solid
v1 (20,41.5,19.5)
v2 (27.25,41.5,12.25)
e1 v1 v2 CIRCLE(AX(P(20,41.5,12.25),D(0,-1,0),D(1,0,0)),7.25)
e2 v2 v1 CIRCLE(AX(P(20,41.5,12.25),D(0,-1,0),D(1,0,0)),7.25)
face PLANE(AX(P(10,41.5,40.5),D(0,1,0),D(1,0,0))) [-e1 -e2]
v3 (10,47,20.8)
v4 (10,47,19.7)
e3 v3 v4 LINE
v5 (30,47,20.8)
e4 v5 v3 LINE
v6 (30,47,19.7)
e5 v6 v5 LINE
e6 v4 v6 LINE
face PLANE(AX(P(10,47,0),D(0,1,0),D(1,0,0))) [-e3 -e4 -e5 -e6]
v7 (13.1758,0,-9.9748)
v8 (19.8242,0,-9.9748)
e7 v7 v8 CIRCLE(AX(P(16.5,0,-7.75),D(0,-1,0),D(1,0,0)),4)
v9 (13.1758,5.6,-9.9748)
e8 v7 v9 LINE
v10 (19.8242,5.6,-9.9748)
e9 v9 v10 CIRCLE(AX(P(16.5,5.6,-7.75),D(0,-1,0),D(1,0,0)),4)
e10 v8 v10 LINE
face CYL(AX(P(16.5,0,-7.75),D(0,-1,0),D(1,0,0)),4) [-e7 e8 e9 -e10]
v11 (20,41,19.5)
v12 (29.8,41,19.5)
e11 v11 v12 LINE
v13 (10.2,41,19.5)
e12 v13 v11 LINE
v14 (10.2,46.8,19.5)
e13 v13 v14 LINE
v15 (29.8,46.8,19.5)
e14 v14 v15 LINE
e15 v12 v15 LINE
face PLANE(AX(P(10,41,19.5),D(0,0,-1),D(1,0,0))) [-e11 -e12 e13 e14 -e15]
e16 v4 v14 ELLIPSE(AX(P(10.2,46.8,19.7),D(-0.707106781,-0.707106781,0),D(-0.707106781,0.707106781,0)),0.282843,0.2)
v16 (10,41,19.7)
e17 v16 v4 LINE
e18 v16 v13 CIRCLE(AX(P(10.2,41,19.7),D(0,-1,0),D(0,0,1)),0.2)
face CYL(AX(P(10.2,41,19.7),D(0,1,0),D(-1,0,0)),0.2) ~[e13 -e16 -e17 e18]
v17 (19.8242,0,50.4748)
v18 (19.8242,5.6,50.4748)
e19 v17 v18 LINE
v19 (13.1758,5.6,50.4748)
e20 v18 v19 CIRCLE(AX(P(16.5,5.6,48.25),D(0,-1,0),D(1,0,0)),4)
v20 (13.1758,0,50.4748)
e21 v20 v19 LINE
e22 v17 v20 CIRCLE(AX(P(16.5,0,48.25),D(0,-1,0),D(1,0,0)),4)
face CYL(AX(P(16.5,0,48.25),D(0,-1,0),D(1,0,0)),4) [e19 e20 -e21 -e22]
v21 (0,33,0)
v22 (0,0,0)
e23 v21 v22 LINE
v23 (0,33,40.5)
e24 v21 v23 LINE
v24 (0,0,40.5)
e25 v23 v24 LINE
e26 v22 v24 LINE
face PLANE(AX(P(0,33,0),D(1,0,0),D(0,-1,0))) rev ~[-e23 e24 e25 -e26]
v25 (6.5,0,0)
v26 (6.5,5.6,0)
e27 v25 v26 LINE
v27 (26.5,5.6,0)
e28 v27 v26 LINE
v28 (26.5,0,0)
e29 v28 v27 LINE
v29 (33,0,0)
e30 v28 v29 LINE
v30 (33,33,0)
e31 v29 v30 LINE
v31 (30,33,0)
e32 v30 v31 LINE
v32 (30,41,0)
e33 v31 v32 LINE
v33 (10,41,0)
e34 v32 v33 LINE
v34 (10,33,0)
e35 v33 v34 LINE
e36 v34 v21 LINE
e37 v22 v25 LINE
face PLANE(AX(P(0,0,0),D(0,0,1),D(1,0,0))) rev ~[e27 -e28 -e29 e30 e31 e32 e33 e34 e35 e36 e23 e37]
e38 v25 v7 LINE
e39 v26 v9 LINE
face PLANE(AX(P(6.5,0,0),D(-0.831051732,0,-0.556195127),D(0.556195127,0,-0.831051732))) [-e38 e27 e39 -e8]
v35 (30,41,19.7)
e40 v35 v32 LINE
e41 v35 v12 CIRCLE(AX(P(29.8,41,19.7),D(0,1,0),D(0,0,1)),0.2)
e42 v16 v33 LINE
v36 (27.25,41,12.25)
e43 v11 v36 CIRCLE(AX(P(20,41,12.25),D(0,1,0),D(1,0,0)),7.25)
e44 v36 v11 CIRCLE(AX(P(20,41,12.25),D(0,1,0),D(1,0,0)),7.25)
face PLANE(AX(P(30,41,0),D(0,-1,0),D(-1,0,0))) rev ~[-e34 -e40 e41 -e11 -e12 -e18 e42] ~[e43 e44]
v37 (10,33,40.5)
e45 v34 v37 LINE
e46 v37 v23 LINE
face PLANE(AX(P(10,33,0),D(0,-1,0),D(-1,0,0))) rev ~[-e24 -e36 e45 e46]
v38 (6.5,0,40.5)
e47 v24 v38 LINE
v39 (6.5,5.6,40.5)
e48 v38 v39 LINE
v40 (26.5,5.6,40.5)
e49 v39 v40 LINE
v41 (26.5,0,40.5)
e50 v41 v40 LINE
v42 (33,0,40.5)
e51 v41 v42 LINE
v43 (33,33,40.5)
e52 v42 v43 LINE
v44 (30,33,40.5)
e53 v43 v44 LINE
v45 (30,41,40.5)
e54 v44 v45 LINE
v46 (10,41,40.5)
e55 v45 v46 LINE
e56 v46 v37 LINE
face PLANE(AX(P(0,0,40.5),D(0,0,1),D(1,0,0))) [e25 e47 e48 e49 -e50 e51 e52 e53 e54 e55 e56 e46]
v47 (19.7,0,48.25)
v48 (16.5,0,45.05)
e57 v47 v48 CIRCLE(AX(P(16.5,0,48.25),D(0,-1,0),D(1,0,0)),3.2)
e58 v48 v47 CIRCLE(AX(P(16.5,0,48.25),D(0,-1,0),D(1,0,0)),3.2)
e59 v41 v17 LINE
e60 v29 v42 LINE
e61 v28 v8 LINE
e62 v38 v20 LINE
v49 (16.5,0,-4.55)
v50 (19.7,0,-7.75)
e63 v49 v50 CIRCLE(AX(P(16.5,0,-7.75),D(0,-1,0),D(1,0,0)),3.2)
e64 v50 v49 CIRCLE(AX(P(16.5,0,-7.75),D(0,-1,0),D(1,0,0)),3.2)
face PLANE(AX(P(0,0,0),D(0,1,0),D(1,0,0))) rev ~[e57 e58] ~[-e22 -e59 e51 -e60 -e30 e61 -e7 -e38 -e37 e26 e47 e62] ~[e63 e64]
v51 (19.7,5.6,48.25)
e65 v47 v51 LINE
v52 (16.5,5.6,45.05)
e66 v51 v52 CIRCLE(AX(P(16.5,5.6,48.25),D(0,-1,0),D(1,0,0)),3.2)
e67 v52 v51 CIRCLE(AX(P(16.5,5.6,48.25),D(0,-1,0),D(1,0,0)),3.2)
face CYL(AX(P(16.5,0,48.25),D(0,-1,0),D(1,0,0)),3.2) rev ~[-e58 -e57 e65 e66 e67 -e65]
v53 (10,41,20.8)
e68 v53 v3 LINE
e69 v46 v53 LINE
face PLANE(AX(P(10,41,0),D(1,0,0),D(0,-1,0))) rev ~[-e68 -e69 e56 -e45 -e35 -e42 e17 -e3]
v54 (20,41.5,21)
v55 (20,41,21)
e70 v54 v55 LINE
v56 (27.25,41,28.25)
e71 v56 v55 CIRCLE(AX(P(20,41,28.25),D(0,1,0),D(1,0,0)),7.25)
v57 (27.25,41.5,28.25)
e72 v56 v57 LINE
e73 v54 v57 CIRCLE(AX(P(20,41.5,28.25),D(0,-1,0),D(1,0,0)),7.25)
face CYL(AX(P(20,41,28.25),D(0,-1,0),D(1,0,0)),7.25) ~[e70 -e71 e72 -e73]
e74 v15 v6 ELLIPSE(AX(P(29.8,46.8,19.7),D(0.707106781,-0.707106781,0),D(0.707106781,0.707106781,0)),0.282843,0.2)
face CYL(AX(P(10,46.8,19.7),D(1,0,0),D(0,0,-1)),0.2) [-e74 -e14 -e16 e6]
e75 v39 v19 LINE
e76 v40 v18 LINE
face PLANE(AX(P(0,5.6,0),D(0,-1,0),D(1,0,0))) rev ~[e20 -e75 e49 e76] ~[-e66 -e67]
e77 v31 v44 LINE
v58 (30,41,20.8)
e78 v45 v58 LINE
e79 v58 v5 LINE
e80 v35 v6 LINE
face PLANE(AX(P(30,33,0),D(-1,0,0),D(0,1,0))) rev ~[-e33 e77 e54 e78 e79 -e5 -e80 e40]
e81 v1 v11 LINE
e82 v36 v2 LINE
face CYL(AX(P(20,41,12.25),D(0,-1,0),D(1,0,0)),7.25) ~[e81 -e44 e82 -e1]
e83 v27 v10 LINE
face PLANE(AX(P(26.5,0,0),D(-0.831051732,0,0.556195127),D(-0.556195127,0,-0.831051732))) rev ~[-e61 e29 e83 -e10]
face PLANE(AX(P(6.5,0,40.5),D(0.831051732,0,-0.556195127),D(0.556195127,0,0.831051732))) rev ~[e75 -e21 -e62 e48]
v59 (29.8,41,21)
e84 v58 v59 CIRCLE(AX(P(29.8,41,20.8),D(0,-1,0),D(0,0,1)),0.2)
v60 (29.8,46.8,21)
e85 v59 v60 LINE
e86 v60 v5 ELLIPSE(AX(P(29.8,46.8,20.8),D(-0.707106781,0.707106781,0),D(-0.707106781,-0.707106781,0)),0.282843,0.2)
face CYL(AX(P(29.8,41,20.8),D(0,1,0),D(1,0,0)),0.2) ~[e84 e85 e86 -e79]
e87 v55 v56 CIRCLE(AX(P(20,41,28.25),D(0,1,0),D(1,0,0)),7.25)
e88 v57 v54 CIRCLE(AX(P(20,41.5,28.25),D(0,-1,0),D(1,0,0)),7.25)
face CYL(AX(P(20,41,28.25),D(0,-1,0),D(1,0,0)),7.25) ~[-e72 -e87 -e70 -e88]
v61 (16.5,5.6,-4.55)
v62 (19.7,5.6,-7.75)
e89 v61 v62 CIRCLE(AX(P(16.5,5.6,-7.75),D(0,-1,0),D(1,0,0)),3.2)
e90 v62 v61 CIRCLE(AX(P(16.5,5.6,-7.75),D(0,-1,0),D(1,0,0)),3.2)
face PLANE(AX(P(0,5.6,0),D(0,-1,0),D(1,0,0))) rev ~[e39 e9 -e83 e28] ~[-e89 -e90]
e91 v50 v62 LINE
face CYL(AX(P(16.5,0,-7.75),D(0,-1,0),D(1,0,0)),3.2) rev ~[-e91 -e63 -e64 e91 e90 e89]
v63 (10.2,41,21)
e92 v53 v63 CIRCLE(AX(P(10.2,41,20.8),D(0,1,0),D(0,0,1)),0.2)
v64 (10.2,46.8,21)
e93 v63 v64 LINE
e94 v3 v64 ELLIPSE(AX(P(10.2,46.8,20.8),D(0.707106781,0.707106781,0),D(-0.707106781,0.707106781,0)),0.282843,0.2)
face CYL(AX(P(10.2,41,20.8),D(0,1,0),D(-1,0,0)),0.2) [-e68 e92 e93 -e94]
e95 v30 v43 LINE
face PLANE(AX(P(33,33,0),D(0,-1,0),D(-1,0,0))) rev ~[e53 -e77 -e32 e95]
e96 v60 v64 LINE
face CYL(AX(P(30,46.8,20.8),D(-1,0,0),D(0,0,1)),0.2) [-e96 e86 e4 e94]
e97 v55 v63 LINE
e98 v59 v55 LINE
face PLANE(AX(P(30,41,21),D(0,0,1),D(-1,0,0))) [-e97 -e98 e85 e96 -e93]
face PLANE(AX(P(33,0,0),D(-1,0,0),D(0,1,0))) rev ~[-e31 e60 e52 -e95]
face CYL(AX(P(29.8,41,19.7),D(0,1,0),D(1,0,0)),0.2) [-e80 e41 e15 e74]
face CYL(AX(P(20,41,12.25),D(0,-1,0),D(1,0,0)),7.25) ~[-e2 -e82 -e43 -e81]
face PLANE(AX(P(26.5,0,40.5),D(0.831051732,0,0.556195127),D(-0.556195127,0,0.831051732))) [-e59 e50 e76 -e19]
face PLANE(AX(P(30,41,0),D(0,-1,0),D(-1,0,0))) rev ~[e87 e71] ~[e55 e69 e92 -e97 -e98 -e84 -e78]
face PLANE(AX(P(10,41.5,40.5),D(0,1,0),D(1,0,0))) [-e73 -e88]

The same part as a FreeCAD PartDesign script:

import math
import FreeCAD as App
import Part
import Sketcher
from FreeCAD import Vector


def edges_at(feature, points):
    """Names of the edges that pass closest to the given points."""
    edges = feature.Shape.Edges
    near = lambda p: min(range(len(edges)), key=lambda i: edges[i].distToShape(Part.Vertex(*p))[0])
    return sorted({f"Edge{near(p) + 1}" for p in points})

doc = App.newDocument("Part")
body = doc.addObject("PartDesign::Body", "Body")

# Sketch on XY plane
sketch1 = body.newObject("Sketcher::SketchObject", "Sketch")
sketch1.AttachmentSupport = (doc.getObject("XY_Plane"), [""])
sketch1.MapMode = "FlatFace"
sketch1.addGeometry(Part.LineSegment(Vector(0, 33, 0), Vector(0, 0, 0)), False)
sketch1.addGeometry(Part.LineSegment(Vector(0, 0, 0), Vector(33, 0, 0)), False)
sketch1.addGeometry(Part.LineSegment(Vector(33, 0, 0), Vector(33, 33, 0)), False)
sketch1.addGeometry(Part.LineSegment(Vector(33, 33, 0), Vector(30, 33, 0)), False)
sketch1.addGeometry(Part.LineSegment(Vector(30, 33, 0), Vector(30, 41, 0)), False)
sketch1.addGeometry(Part.LineSegment(Vector(30, 41, 0), Vector(10, 41, 0)), False)
sketch1.addGeometry(Part.LineSegment(Vector(10, 41, 0), Vector(10, 33, 0)), False)
sketch1.addGeometry(Part.LineSegment(Vector(10, 33, 0), Vector(0, 33, 0)), False)
sketch1.addConstraint(Sketcher.Constraint("Coincident", 0, 2, 1, 1))
sketch1.addConstraint(Sketcher.Constraint("Coincident", 1, 2, 2, 1))
sketch1.addConstraint(Sketcher.Constraint("Coincident", 2, 2, 3, 1))
sketch1.addConstraint(Sketcher.Constraint("Coincident", 3, 2, 4, 1))
sketch1.addConstraint(Sketcher.Constraint("Coincident", 4, 2, 5, 1))
sketch1.addConstraint(Sketcher.Constraint("Coincident", 5, 2, 6, 1))
sketch1.addConstraint(Sketcher.Constraint("Coincident", 6, 2, 7, 1))
sketch1.addConstraint(Sketcher.Constraint("Coincident", 7, 2, 0, 1))
sketch1.addConstraint(Sketcher.Constraint("Vertical", 0))
sketch1.addConstraint(Sketcher.Constraint("Horizontal", 1))
sketch1.addConstraint(Sketcher.Constraint("Vertical", 2))
sketch1.addConstraint(Sketcher.Constraint("Horizontal", 3))
sketch1.addConstraint(Sketcher.Constraint("Vertical", 4))
sketch1.addConstraint(Sketcher.Constraint("Horizontal", 5))
sketch1.addConstraint(Sketcher.Constraint("Vertical", 6))
sketch1.addConstraint(Sketcher.Constraint("Horizontal", 7))
sketch1.addConstraint(Sketcher.Constraint("Coincident", 0, 2, -1, 1))
sketch1.addConstraint(Sketcher.Constraint("Horizontal", 3, 2, 6, 2))
sketch1.addConstraint(Sketcher.Constraint("Equal", 1, 0))
sketch1.addConstraint(Sketcher.Constraint("DistanceX", 1, 1, 1, 2, 33.0))
sketch1.addConstraint(Sketcher.Constraint("DistanceX", 3, 2, 3, 1, 3.0))
sketch1.addConstraint(Sketcher.Constraint("DistanceX", 7, 2, 7, 1, 10.0))
sketch1.addConstraint(Sketcher.Constraint("DistanceY", -1, 1, 4, 2, 41.0))
pad1 = body.newObject("PartDesign::Pad", "Pad")
pad1.Profile = sketch1
pad1.Length = 40.5

# Sketch on XZ plane
sketch2 = body.newObject("Sketcher::SketchObject", "Sketch001")
sketch2.AttachmentSupport = (doc.getObject("XZ_Plane"), [""])
sketch2.MapMode = "FlatFace"
sketch2.AttachmentOffset = App.Placement(Vector(0, 0, -41), App.Rotation())
sketch2.addGeometry(Part.LineSegment(Vector(10, 21, 0), Vector(30, 21, 0)), False)
sketch2.addGeometry(Part.LineSegment(Vector(30, 21, 0), Vector(30, 19.5, 0)), False)
sketch2.addGeometry(Part.LineSegment(Vector(30, 19.5, 0), Vector(10, 19.5, 0)), False)
sketch2.addGeometry(Part.LineSegment(Vector(10, 19.5, 0), Vector(10, 21, 0)), False)
sketch2.addConstraint(Sketcher.Constraint("Coincident", 0, 2, 1, 1))
sketch2.addConstraint(Sketcher.Constraint("Coincident", 1, 2, 2, 1))
sketch2.addConstraint(Sketcher.Constraint("Coincident", 2, 2, 3, 1))
sketch2.addConstraint(Sketcher.Constraint("Coincident", 3, 2, 0, 1))
sketch2.addConstraint(Sketcher.Constraint("Horizontal", 0))
sketch2.addConstraint(Sketcher.Constraint("Vertical", 1))
sketch2.addConstraint(Sketcher.Constraint("Horizontal", 2))
sketch2.addConstraint(Sketcher.Constraint("Vertical", 3))
sketch2.addConstraint(Sketcher.Constraint("DistanceY", 1, 2, 1, 1, 1.5))
sketch2.addConstraint(Sketcher.Constraint("DistanceX", 0, 1, 0, 2, 20.0))
sketch2.addConstraint(Sketcher.Constraint("DistanceX", -1, 1, 0, 2, 30.0))
sketch2.addConstraint(Sketcher.Constraint("DistanceY", -1, 1, 0, 2, 21.0))
pad2 = body.newObject("PartDesign::Pad", "Pad001")
pad2.Profile = sketch2
pad2.Length = 6
pad2.Reversed = True
doc.recompute()

fillet = body.newObject("PartDesign::Fillet", "Fillet")
fillet.Base = (pad2, edges_at(pad2, [
    (10, 44, 21),
    (20, 47, 21),
    (30, 44, 21),
    (10, 44, 19.5),
    (20, 47, 19.5),
    (30, 44, 19.5),
]))
fillet.Radius = 0.2

# Sketch on XZ plane
sketch3 = body.newObject("Sketcher::SketchObject", "Sketch002")
sketch3.AttachmentSupport = (doc.getObject("XZ_Plane"), [""])
sketch3.MapMode = "FlatFace"
sketch3.AttachmentOffset = App.Placement(Vector(0, 0, -41), App.Rotation())
sketch3.addGeometry(Part.Circle(Vector(20, 12, 0), Vector(0, 0, 1), 7), False)
sketch3.addGeometry(Part.Circle(Vector(20, 28, 0), Vector(0, 0, 1), 7), False)
sketch3.addConstraint(Sketcher.Constraint("Equal", 0, 1))
sketch3.addConstraint(Sketcher.Constraint("Vertical", 0, 3, 1, 3))
sketch3.addConstraint(Sketcher.Constraint("Diameter", 0, 14.5))
sketch3.addConstraint(Sketcher.Constraint("DistanceX", -1, 1, 0, 3, 20.0))
sketch3.addConstraint(Sketcher.Constraint("DistanceY", 0, 3, 1, 3, 16.0))
sketch3.addConstraint(Sketcher.Constraint("DistanceY", -1, 1, 0, 3, 12.25))
pad3 = body.newObject("PartDesign::Pad", "Pad002")
pad3.Profile = sketch3
pad3.Length = 0.5
pad3.Reversed = True

# Sketch on XZ plane
sketch4 = body.newObject("Sketcher::SketchObject", "Sketch003")
sketch4.AttachmentSupport = (doc.getObject("XZ_Plane"), [""])
sketch4.MapMode = "FlatFace"
sketch4.addGeometry(Part.LineSegment(Vector(6.5, 40.5, 0), Vector(26.5, 40.5, 0)), False)
sketch4.addGeometry(Part.LineSegment(Vector(26.5, 40.5, 0), Vector(19.8, 50.5, 0)), False)
sketch4.addGeometry(Part.ArcOfCircle(Part.Circle(Vector(16.5, 48.2, 0), Vector(0, 0, 1), 4), math.radians(34), math.radians(146)), False)
sketch4.addGeometry(Part.LineSegment(Vector(13.2, 50.5, 0), Vector(6.5, 40.5, 0)), False)
sketch4.addGeometry(Part.Circle(Vector(16.5, 48.2, 0), Vector(0, 0, 1), 3.2), False)
sketch4.addGeometry(Part.LineSegment(Vector(6.5, 0, 0), Vector(13.2, -10, 0)), False)
sketch4.addGeometry(Part.ArcOfCircle(Part.Circle(Vector(16.5, -7.8, 0), Vector(0, 0, 1), 4), math.radians(-146), math.radians(-34)), False)
sketch4.addGeometry(Part.LineSegment(Vector(19.8, -10, 0), Vector(26.5, 0, 0)), False)
sketch4.addGeometry(Part.LineSegment(Vector(26.5, 0, 0), Vector(6.5, 0, 0)), False)
sketch4.addGeometry(Part.Circle(Vector(16.5, -7.8, 0), Vector(0, 0, 1), 3.2), False)
sketch4.addConstraint(Sketcher.Constraint("Coincident", 0, 2, 1, 1))
sketch4.addConstraint(Sketcher.Constraint("Tangent", 1, 2, 2, 1))
sketch4.addConstraint(Sketcher.Constraint("Tangent", 2, 2, 3, 1))
sketch4.addConstraint(Sketcher.Constraint("Coincident", 3, 2, 0, 1))
sketch4.addConstraint(Sketcher.Constraint("Tangent", 5, 2, 6, 1))
sketch4.addConstraint(Sketcher.Constraint("Tangent", 6, 2, 7, 1))
sketch4.addConstraint(Sketcher.Constraint("Coincident", 7, 2, 8, 1))
sketch4.addConstraint(Sketcher.Constraint("Coincident", 8, 2, 5, 1))
sketch4.addConstraint(Sketcher.Constraint("Horizontal", 0))
sketch4.addConstraint(Sketcher.Constraint("Horizontal", 8))
sketch4.addConstraint(Sketcher.Constraint("Coincident", 4, 3, 2, 3))
sketch4.addConstraint(Sketcher.Constraint("Coincident", 9, 3, 6, 3))
sketch4.addConstraint(Sketcher.Constraint("Equal", 2, 6))
sketch4.addConstraint(Sketcher.Constraint("Equal", 4, 9))
sketch4.addConstraint(Sketcher.Constraint("PointOnObject", 7, 2, -1))
sketch4.addConstraint(Sketcher.Constraint("Parallel", 1, 5))
sketch4.addConstraint(Sketcher.Constraint("Parallel", 3, 7))
sketch4.addConstraint(Sketcher.Constraint("Horizontal", 1, 2, 2, 2))
sketch4.addConstraint(Sketcher.Constraint("Vertical", 4, 3, 6, 3))
sketch4.addConstraint(Sketcher.Constraint("Vertical", 0, 2, 7, 2))
sketch4.addConstraint(Sketcher.Constraint("Radius", 2, 4.0))
sketch4.addConstraint(Sketcher.Constraint("Diameter", 4, 6.4))
sketch4.addConstraint(Sketcher.Constraint("DistanceX", 0, 1, 0, 2, 20.0))
sketch4.addConstraint(Sketcher.Constraint("DistanceX", -1, 1, 3, 2, 6.5))
sketch4.addConstraint(Sketcher.Constraint("DistanceY", 6, 3, 2, 3, 56.0))
sketch4.addConstraint(Sketcher.Constraint("DistanceY", -1, 1, 0, 2, 40.5))
pad4 = body.newObject("PartDesign::Pad", "Pad003")
pad4.Profile = sketch4
pad4.Length = 5.6
pad4.Reversed = True

doc.recompute()
